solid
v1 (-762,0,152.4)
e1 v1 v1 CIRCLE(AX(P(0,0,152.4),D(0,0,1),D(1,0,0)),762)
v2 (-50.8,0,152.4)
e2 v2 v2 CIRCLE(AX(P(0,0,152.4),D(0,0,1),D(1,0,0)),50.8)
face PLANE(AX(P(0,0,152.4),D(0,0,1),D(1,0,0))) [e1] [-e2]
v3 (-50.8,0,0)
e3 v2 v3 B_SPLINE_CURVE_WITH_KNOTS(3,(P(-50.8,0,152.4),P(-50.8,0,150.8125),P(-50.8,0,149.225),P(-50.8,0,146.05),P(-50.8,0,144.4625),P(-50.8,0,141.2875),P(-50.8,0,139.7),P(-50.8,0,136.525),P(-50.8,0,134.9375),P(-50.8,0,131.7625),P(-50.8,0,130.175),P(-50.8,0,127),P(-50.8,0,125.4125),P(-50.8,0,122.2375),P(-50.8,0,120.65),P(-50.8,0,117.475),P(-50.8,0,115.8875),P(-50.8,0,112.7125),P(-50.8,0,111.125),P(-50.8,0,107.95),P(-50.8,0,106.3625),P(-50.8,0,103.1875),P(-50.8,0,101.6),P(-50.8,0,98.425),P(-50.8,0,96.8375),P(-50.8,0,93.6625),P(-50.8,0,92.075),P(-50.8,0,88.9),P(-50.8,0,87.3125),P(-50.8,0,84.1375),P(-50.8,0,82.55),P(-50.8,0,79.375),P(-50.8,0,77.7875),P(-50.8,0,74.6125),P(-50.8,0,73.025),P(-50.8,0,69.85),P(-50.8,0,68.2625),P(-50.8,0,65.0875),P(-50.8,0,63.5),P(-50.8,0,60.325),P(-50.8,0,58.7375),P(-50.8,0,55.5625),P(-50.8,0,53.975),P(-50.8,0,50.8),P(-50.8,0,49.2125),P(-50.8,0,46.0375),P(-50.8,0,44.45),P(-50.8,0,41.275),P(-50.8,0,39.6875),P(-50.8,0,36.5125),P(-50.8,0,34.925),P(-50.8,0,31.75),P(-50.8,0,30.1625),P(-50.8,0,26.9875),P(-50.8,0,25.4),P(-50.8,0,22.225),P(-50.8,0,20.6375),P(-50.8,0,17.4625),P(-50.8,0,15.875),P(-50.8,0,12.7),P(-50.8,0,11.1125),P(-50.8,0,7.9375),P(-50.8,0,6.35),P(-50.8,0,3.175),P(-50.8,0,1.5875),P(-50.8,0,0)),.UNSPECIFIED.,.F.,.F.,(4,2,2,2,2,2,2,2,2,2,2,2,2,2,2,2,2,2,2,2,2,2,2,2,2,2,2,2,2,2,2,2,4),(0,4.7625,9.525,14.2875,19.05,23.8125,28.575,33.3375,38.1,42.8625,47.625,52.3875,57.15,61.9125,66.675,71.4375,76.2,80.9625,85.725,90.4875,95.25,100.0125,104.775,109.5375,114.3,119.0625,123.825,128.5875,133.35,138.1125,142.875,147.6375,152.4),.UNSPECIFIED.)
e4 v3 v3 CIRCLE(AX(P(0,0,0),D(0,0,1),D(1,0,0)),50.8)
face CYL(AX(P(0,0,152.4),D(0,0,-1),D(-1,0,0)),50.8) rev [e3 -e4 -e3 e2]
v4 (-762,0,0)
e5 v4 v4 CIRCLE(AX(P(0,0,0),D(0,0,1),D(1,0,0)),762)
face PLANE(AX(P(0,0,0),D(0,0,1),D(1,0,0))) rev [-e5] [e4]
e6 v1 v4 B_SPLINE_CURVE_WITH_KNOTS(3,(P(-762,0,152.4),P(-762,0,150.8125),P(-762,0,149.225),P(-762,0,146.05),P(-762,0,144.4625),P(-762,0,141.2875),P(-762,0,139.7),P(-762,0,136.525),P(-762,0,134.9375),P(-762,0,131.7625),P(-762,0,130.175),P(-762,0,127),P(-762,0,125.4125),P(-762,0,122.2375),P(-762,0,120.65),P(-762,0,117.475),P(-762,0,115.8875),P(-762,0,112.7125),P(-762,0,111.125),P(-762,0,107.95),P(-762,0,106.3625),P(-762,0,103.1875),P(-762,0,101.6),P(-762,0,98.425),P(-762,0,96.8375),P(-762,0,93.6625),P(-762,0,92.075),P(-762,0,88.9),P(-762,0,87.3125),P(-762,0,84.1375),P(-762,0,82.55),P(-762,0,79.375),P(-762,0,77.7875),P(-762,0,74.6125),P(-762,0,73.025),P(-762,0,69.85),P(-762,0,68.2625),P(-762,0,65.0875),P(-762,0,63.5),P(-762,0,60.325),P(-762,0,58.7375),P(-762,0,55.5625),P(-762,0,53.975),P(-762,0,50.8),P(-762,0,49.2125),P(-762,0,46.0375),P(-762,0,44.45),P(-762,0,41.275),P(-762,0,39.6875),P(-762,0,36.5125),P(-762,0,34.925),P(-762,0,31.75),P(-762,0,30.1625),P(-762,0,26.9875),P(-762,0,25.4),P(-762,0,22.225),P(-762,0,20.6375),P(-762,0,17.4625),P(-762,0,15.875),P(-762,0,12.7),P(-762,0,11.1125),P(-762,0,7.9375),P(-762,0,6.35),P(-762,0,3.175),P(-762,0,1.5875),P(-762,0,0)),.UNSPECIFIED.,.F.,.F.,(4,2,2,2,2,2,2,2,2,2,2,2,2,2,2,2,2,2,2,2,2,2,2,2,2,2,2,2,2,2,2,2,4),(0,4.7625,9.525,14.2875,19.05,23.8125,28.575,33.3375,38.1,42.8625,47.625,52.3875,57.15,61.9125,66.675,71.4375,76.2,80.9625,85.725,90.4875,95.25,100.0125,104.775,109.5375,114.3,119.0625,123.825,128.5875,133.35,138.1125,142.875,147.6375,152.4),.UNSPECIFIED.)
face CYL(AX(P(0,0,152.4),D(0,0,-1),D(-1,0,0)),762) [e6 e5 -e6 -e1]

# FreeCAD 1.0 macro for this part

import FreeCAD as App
import Part
import Sketcher
from FreeCAD import Vector
Q = App.Units.Quantity

doc = App.newDocument("Part")
body = doc.addObject("PartDesign::Body", "Body")

# Sketch on XY plane
sketch1 = body.newObject("Sketcher::SketchObject", "Sketch")
sketch1.AttachmentSupport = (doc.getObject("XY_Plane"), [""])
sketch1.MapMode = "FlatFace"
sketch1.addGeometry([
    Part.Circle(Vector(0, 0, 0), Vector(0, 0, 1), 762),
    Part.Circle(Vector(0, 0, 0), Vector(0, 0, 1), 51),
], False)
sketch1.addConstraint([
    Sketcher.Constraint("Coincident", 0, 3, -1, 1),
    Sketcher.Constraint("Coincident", 1, 3, -1, 1),
    Sketcher.Constraint("Diameter", 0, Q("60 in")),
    Sketcher.Constraint("Diameter", 1, Q("4 in")),
])
pad1 = body.newObject("PartDesign::Pad", "Pad")
pad1.Profile = sketch1
pad1.Length = Q("6 in")

doc.recompute()
